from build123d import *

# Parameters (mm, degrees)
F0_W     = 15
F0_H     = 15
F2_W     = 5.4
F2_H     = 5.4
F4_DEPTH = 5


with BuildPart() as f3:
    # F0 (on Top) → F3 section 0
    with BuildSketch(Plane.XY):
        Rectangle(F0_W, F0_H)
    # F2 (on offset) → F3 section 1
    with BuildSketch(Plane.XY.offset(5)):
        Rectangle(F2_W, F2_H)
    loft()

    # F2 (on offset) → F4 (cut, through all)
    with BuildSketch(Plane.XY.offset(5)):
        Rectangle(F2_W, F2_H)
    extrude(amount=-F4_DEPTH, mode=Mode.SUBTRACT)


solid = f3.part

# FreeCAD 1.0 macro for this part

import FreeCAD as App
import Part
import Sketcher
from FreeCAD import Vector

doc = App.newDocument("Part")
body = doc.addObject("PartDesign::Body", "Body")

# Sketch on XY plane
sketch1 = body.newObject("Sketcher::SketchObject", "Sketch")
sketch1.AttachmentSupport = (doc.getObject("XY_Plane"), [""])
sketch1.MapMode = "FlatFace"
sketch1.addGeometry(Part.LineSegment(Vector(-7.5, 7.5, 0), Vector(-7.5, -7.5, 0)), False)
sketch1.addGeometry(Part.LineSegment(Vector(-7.5, -7.5, 0), Vector(7.5, -7.5, 0)), False)
sketch1.addGeometry(Part.LineSegment(Vector(7.5, -7.5, 0), Vector(7.5, 7.5, 0)), False)
sketch1.addGeometry(Part.LineSegment(Vector(7.5, 7.5, 0), Vector(-7.5, 7.5, 0)), False)
sketch1.addConstraint(Sketcher.Constraint("Coincident", 0, 2, 1, 1))
sketch1.addConstraint(Sketcher.Constraint("Coincident", 1, 2, 2, 1))
sketch1.addConstraint(Sketcher.Constraint("Coincident", 2, 2, 3, 1))
sketch1.addConstraint(Sketcher.Constraint("Coincident", 3, 2, 0, 1))
sketch1.addConstraint(Sketcher.Constraint("Vertical", 0))
sketch1.addConstraint(Sketcher.Constraint("Horizontal", 1))
sketch1.addConstraint(Sketcher.Constraint("Vertical", 2))
sketch1.addConstraint(Sketcher.Constraint("Horizontal", 3))
sketch1.addConstraint(Sketcher.Constraint("Symmetric", 0, 2, 2, 2, -1, 1))
sketch1.addConstraint(Sketcher.Constraint("Equal", 3, 0))
sketch1.addConstraint(Sketcher.Constraint("DistanceX", 1, 1, 1, 2, 15.0))

# Sketch on XY plane
sketch2 = body.newObject("Sketcher::SketchObject", "Sketch001")
sketch2.AttachmentSupport = (doc.getObject("XY_Plane"), [""])
sketch2.MapMode = "FlatFace"
sketch2.AttachmentOffset = App.Placement(Vector(0, 0, 5), App.Rotation())
sketch2.addGeometry(Part.LineSegment(Vector(-2.7, 2.7, 0), Vector(-2.7, -2.7, 0)), False)
sketch2.addGeometry(Part.LineSegment(Vector(-2.7, -2.7, 0), Vector(2.7, -2.7, 0)), False)
sketch2.addGeometry(Part.LineSegment(Vector(2.7, -2.7, 0), Vector(2.7, 2.7, 0)), False)
sketch2.addGeometry(Part.LineSegment(Vector(2.7, 2.7, 0), Vector(-2.7, 2.7, 0)), False)
sketch2.addConstraint(Sketcher.Constraint("Coincident", 0, 2, 1, 1))
sketch2.addConstraint(Sketcher.Constraint("Coincident", 1, 2, 2, 1))
sketch2.addConstraint(Sketcher.Constraint("Coincident", 2, 2, 3, 1))
sketch2.addConstraint(Sketcher.Constraint("Coincident", 3, 2, 0, 1))
sketch2.addConstraint(Sketcher.Constraint("Vertical", 0))
sketch2.addConstraint(Sketcher.Constraint("Horizontal", 1))
sketch2.addConstraint(Sketcher.Constraint("Vertical", 2))
sketch2.addConstraint(Sketcher.Constraint("Horizontal", 3))
sketch2.addConstraint(Sketcher.Constraint("Symmetric", 0, 2, 2, 2, -1, 1))
sketch2.addConstraint(Sketcher.Constraint("Equal", 3, 0))
sketch2.addConstraint(Sketcher.Constraint("DistanceX", 1, 1, 1, 2, 5.4))

additiveloft = body.newObject("PartDesign::AdditiveLoft", "AdditiveLoft")
additiveloft.Profile = sketch1
additiveloft.Sections = [sketch2]

# Sketch on XY plane
sketch3 = body.newObject("Sketcher::SketchObject", "Sketch002")
sketch3.AttachmentSupport = (doc.getObject("XY_Plane"), [""])
sketch3.MapMode = "FlatFace"
sketch3.AttachmentOffset = App.Placement(Vector(0, 0, 5), App.Rotation())
sketch3.addGeometry(Part.LineSegment(Vector(-2.7, 2.7, 0), Vector(-2.7, -2.7, 0)), False)
sketch3.addGeometry(Part.LineSegment(Vector(-2.7, -2.7, 0), Vector(2.7, -2.7, 0)), False)
sketch3.addGeometry(Part.LineSegment(Vector(2.7, -2.7, 0), Vector(2.7, 2.7, 0)), False)
sketch3.addGeometry(Part.LineSegment(Vector(2.7, 2.7, 0), Vector(-2.7, 2.7, 0)), False)
sketch3.addConstraint(Sketcher.Constraint("Coincident", 0, 2, 1, 1))
sketch3.addConstraint(Sketcher.Constraint("Coincident", 1, 2, 2, 1))
sketch3.addConstraint(Sketcher.Constraint("Coincident", 2, 2, 3, 1))
sketch3.addConstraint(Sketcher.Constraint("Coincident", 3, 2, 0, 1))
sketch3.addConstraint(Sketcher.Constraint("Vertical", 0))
sketch3.addConstraint(Sketcher.Constraint("Horizontal", 1))
sketch3.addConstraint(Sketcher.Constraint("Vertical", 2))
sketch3.addConstraint(Sketcher.Constraint("Horizontal", 3))
sketch3.addConstraint(Sketcher.Constraint("Symmetric", 0, 2, 2, 2, -1, 1))
sketch3.addConstraint(Sketcher.Constraint("Equal", 3, 0))
sketch3.addConstraint(Sketcher.Constraint("DistanceX", 1, 1, 1, 2, 5.4))
pocket1 = body.newObject("PartDesign::Pocket", "Pocket")
pocket1.Profile = sketch3
pocket1.Type = "ThroughAll"

doc.recompute()
